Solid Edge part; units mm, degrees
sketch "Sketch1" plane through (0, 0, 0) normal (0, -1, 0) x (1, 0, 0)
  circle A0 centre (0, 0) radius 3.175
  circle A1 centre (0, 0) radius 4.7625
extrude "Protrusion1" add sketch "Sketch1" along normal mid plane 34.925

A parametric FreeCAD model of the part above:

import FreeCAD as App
import Part
import Sketcher
Q = App.Units.Quantity

doc = App.newDocument("Part")
body = doc.addObject("PartDesign::Body", "Body")

sketch1 = doc.addObject("Sketcher::SketchObject", "Sketch")
body.addObject(sketch1)
sketch1.AttachmentSupport = (doc.XZ_Plane, [""])
sketch1.MapMode = "FlatFace"
sketch1.addGeometry(Part.Circle(App.Vector(0, 0, 0), App.Vector(0, 0, 1), 4.8), False)
sketch1.addGeometry(Part.Circle(App.Vector(0, 0, 0), App.Vector(0, 0, 1), 3.2), False)
sketch1.addConstraint(Sketcher.Constraint("Coincident", 0, 3, -1, 1))
sketch1.addConstraint(Sketcher.Constraint("Coincident", 1, 3, -1, 1))
sketch1.addConstraint(Sketcher.Constraint("Diameter", 1, Q("0.25 in")))
sketch1.addConstraint(Sketcher.Constraint("Diameter", 0, Q("0.375 in")))
pad1 = doc.addObject("PartDesign::Pad", "Pad")
body.addObject(pad1)
pad1.Profile = sketch1
pad1.Length = Q("1.375 in")
pad1.Midplane = True

doc.recompute()
